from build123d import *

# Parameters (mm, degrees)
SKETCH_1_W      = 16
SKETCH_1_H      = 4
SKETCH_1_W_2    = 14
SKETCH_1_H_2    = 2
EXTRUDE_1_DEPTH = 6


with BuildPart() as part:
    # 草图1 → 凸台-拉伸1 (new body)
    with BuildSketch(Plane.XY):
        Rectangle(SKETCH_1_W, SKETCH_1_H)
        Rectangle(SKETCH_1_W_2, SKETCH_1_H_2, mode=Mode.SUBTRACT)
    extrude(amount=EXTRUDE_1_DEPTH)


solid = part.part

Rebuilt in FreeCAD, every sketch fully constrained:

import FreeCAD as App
import Part
import Sketcher

V = App.Vector


def add_polygon(sketch, points):
    """Adds a closed chain of lines whose ends are joined by coincident constraints."""
    first, n = sketch.GeometryCount, len(points)
    for a, b in zip(points, points[1:] + points[:1]):
        sketch.addGeometry(Part.LineSegment(App.Vector(*a, 0), App.Vector(*b, 0)), False)
    for i in range(n):
        sketch.addConstraint(Sketcher.Constraint("Coincident", first + i, 2, first + (i + 1) % n, 1))

doc = App.newDocument("Part")
body = doc.addObject("PartDesign::Body", "Body")

# Sketch on XY plane
sketch1 = body.newObject("Sketcher::SketchObject", "Sketch")
sketch1.AttachmentSupport = (doc.getObject("XY_Plane"), [""])
sketch1.MapMode = "FlatFace"
add_polygon(sketch1, [(-8, 2), (-8, -2), (8, -2), (8, 2)])  # lines 0-3
add_polygon(sketch1, [(7, -1), (-7, -1), (-7, 1), (7, 1)])  # lines 4-7
sketch1.addConstraint([
    Sketcher.Constraint("Vertical", 0),
    Sketcher.Constraint("Horizontal", 1),
    Sketcher.Constraint("Vertical", 2),
    Sketcher.Constraint("Horizontal", 3),
    Sketcher.Constraint("Horizontal", 4),
    Sketcher.Constraint("Vertical", 5),
    Sketcher.Constraint("Horizontal", 6),
    Sketcher.Constraint("Vertical", 7),
    Sketcher.Constraint("Symmetric", 0, 2, 2, 2, -1, 1),
    Sketcher.Constraint("Symmetric", 4, 2, 6, 2, -1, 1),
    Sketcher.Constraint("DistanceX", 1, 1, 1, 2, 16.0),
    Sketcher.Constraint("DistanceX", 4, 2, 4, 1, 14.0),
    Sketcher.Constraint("DistanceY", 0, 2, 0, 1, 4.0),
    Sketcher.Constraint("DistanceY", 5, 1, 5, 2, 2.0),
])
pad1 = body.newObject("PartDesign::Pad", "Pad")
pad1.Profile = sketch1
pad1.Length = 6

doc.recompute()
